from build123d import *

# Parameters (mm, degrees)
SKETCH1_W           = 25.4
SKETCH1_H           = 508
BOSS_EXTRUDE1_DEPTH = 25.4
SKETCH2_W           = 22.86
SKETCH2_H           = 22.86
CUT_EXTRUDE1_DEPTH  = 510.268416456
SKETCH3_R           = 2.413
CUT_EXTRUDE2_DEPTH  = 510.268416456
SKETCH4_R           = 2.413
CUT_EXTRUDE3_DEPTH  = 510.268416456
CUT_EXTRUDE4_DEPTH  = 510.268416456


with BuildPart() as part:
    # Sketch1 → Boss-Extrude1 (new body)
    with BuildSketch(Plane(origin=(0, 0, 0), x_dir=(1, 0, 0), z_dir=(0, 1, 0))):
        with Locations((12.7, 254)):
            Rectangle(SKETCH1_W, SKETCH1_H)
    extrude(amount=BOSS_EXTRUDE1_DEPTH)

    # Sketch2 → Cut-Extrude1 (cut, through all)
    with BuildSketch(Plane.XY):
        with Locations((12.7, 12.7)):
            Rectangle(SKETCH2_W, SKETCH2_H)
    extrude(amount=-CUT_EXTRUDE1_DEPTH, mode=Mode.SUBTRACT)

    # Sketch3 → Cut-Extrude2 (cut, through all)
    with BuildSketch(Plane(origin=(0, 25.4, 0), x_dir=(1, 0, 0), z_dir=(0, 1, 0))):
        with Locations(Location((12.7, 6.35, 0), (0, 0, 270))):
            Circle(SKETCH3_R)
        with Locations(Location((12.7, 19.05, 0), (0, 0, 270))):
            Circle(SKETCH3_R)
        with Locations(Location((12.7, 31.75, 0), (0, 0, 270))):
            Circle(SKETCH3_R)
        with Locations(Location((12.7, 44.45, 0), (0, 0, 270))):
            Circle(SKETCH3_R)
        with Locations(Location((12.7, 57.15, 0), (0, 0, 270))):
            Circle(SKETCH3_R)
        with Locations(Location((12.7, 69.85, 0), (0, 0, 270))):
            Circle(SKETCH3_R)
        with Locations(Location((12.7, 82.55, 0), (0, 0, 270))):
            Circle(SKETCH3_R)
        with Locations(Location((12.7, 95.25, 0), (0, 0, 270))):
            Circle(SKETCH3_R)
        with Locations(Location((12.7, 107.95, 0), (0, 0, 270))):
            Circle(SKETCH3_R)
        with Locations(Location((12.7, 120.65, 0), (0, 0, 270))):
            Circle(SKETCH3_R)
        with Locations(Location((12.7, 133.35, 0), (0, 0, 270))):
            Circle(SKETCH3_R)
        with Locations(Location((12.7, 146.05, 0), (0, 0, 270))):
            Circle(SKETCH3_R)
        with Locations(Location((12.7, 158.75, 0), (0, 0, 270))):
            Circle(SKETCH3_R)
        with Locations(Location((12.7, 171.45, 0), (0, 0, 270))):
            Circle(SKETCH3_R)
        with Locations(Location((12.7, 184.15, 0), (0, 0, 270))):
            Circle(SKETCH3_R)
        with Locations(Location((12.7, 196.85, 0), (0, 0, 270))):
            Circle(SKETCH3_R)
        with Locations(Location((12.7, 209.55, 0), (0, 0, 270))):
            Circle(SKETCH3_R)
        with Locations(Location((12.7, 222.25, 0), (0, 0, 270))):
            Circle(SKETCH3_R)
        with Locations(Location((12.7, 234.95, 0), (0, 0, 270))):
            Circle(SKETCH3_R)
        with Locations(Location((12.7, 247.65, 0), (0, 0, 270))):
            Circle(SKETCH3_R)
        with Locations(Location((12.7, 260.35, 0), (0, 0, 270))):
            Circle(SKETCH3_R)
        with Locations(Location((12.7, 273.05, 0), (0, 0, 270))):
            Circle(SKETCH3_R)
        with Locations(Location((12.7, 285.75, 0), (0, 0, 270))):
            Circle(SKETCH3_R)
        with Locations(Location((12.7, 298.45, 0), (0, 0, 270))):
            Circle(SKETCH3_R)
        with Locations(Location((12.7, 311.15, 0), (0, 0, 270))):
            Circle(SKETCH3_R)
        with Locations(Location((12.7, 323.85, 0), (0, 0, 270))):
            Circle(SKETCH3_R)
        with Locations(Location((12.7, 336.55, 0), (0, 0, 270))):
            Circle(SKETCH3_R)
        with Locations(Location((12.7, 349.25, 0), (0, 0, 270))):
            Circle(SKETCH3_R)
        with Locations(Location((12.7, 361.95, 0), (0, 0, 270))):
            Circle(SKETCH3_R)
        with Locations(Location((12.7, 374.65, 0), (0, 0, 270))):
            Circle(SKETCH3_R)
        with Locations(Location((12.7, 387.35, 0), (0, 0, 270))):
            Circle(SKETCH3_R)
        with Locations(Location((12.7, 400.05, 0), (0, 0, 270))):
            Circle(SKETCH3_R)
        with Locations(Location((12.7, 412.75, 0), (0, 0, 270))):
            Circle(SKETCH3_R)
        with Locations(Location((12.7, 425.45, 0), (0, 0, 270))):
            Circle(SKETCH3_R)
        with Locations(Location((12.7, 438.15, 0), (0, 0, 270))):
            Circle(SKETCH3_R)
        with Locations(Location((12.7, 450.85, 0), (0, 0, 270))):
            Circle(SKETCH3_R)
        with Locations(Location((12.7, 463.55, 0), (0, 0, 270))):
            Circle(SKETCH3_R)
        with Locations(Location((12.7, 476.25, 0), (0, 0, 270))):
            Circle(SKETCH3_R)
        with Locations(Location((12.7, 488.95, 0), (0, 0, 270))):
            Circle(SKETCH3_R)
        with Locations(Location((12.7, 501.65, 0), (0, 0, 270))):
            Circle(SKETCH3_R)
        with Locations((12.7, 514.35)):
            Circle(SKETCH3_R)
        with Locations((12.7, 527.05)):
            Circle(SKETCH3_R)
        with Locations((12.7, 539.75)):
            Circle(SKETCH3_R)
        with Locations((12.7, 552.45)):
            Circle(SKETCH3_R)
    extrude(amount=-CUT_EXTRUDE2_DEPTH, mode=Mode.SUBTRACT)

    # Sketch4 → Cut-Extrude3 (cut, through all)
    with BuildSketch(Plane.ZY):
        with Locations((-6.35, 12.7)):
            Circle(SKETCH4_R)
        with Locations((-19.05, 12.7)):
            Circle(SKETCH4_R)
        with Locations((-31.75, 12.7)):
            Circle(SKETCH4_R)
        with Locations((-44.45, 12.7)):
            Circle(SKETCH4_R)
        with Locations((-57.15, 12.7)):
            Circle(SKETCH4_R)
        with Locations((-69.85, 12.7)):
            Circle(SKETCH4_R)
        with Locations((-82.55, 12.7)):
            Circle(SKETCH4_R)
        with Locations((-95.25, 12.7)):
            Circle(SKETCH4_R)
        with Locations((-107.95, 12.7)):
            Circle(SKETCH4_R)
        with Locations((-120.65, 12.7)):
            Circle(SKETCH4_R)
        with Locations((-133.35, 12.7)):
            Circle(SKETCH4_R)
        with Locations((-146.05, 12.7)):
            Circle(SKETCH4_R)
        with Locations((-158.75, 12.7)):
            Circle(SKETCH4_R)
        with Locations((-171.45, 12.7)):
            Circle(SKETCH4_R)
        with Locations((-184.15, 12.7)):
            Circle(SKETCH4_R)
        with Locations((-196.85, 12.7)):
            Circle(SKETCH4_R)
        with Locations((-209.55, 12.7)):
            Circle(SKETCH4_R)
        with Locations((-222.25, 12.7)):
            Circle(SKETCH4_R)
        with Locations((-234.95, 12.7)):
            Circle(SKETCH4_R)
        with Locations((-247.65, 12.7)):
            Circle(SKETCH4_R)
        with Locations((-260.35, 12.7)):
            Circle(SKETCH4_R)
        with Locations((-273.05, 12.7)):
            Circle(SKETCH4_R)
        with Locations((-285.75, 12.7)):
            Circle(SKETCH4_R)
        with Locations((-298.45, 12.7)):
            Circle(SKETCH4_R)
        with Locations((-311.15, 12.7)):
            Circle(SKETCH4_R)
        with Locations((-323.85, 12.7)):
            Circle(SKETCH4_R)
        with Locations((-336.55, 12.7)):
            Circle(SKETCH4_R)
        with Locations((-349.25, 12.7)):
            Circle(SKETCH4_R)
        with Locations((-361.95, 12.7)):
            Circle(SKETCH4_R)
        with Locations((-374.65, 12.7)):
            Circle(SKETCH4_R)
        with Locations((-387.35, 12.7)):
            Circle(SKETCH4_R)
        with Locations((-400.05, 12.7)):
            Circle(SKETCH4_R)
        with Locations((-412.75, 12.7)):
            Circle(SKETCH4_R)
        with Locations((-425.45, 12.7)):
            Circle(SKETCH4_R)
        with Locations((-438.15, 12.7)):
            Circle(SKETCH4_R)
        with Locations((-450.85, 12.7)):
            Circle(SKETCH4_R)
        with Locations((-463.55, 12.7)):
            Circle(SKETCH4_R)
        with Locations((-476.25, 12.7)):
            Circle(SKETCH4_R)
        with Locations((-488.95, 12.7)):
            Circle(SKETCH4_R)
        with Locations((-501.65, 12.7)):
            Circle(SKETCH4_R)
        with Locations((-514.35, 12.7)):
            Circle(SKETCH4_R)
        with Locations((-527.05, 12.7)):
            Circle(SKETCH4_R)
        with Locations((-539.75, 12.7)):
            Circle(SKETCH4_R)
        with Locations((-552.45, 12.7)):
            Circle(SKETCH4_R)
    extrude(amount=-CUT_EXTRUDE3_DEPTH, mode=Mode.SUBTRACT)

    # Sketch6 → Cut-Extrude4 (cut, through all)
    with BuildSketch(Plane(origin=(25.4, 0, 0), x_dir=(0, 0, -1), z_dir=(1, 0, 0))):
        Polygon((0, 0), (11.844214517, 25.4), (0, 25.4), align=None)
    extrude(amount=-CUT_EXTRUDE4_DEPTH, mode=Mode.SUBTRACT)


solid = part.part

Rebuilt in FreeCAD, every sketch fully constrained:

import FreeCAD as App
import Part
import Sketcher
Q = App.Units.Quantity


def add_polygon(sketch, points):
    """Adds a closed chain of lines whose ends are joined by coincident constraints."""
    first, n = sketch.GeometryCount, len(points)
    for a, b in zip(points, points[1:] + points[:1]):
        sketch.addGeometry(Part.LineSegment(App.Vector(*a, 0), App.Vector(*b, 0)), False)
    for i in range(n):
        sketch.addConstraint(Sketcher.Constraint("Coincident", first + i, 2, first + (i + 1) % n, 1))

doc = App.newDocument("Part")
body = doc.addObject("PartDesign::Body", "Body")

# Sketch on XZ plane
sketch1 = doc.addObject("Sketcher::SketchObject", "Sketch")
body.addObject(sketch1)
sketch1.AttachmentSupport = (doc.XZ_Plane, [""])
sketch1.MapMode = "FlatFace"
add_polygon(sketch1, [(0, -508), (0, 0), (25, 0), (25, -508)])  # lines 0-3
sketch1.addConstraint([
    Sketcher.Constraint("Vertical", 0),
    Sketcher.Constraint("Horizontal", 1),
    Sketcher.Constraint("Vertical", 2),
    Sketcher.Constraint("Horizontal", 3),
    Sketcher.Constraint("Coincident", 0, 2, -1, 1),
    Sketcher.Constraint("DistanceX", 1, 1, 1, 2, Q("1 in")),
    Sketcher.Constraint("DistanceY", 0, 1, 0, 2, Q("20 in")),
])
pad1 = doc.addObject("PartDesign::Pad", "Pad")
body.addObject(pad1)
pad1.Profile = sketch1
pad1.Length = Q("1 in")
pad1.Reversed = True

# Sketch on XY plane
sketch2 = doc.addObject("Sketcher::SketchObject", "Sketch001")
body.addObject(sketch2)
sketch2.AttachmentSupport = (doc.XY_Plane, [""])
sketch2.MapMode = "FlatFace"
add_polygon(sketch2, [(1, 24), (1, 1), (24, 1), (24, 24)])  # lines 0-3
sketch2.addConstraint([
    Sketcher.Constraint("Vertical", 0),
    Sketcher.Constraint("Horizontal", 1),
    Sketcher.Constraint("Vertical", 2),
    Sketcher.Constraint("Horizontal", 3),
    Sketcher.Constraint("Equal", 3, 0),
    Sketcher.Constraint("DistanceX", 1, 1, 1, 2, Q("0.9 in")),
    Sketcher.Constraint("DistanceX", -1, 1, 0, 2, Q("0.05 in")),
    Sketcher.Constraint("DistanceY", -1, 1, 0, 2, Q("0.05 in")),
])
pocket1 = doc.addObject("PartDesign::Pocket", "Pocket")
body.addObject(pocket1)
pocket1.Profile = sketch2
pocket1.Type = "ThroughAll"

# Sketch on XZ plane
sketch3 = doc.addObject("Sketcher::SketchObject", "Sketch002")
body.addObject(sketch3)
sketch3.AttachmentSupport = (doc.XZ_Plane, [""])
sketch3.MapMode = "FlatFace"
sketch3.AttachmentOffset = App.Placement(App.Vector(0, 0, -1 * 25.4), App.Rotation())
sketch3.addGeometry([
    Part.Circle(App.Vector(12.7, -6.3, 0), App.Vector(0, 0, 1), 2.4),  # 0
    Part.Circle(App.Vector(12.7, -19.1, 0), App.Vector(0, 0, 1), 2.4),  # 1
    Part.Circle(App.Vector(12.7, -31.8, 0), App.Vector(0, 0, 1), 2.4),  # 2
    Part.Circle(App.Vector(12.7, -44.5, 0), App.Vector(0, 0, 1), 2.4),  # 3
    Part.Circle(App.Vector(12.7, -57.1, 0), App.Vector(0, 0, 1), 2.4),  # 4
    Part.Circle(App.Vector(12.7, -69.8, 0), App.Vector(0, 0, 1), 2.4),  # 5
    Part.Circle(App.Vector(12.7, -82.5, 0), App.Vector(0, 0, 1), 2.4),  # 6
    Part.Circle(App.Vector(12.7, -95.2, 0), App.Vector(0, 0, 1), 2.4),  # 7
    Part.Circle(App.Vector(12.7, -108, 0), App.Vector(0, 0, 1), 2.4),  # 8
    Part.Circle(App.Vector(12.7, -120.7, 0), App.Vector(0, 0, 1), 2.4),  # 9
    Part.Circle(App.Vector(12.7, -133.3, 0), App.Vector(0, 0, 1), 2.4),  # 10
    Part.Circle(App.Vector(12.7, -146.1, 0), App.Vector(0, 0, 1), 2.4),  # 11
    Part.Circle(App.Vector(12.7, -158.8, 0), App.Vector(0, 0, 1), 2.4),  # 12
    Part.Circle(App.Vector(12.7, -171.4, 0), App.Vector(0, 0, 1), 2.4),  # 13
    Part.Circle(App.Vector(12.7, -184.2, 0), App.Vector(0, 0, 1), 2.4),  # 14
    Part.Circle(App.Vector(12.7, -196.8, 0), App.Vector(0, 0, 1), 2.4),  # 15
    Part.Circle(App.Vector(12.7, -209.6, 0), App.Vector(0, 0, 1), 2.4),  # 16
    Part.Circle(App.Vector(12.7, -222.2, 0), App.Vector(0, 0, 1), 2.4),  # 17
    Part.Circle(App.Vector(12.7, -234.9, 0), App.Vector(0, 0, 1), 2.4),  # 18
    Part.Circle(App.Vector(12.7, -247.7, 0), App.Vector(0, 0, 1), 2.4),  # 19
    Part.Circle(App.Vector(12.7, -260.4, 0), App.Vector(0, 0, 1), 2.4),  # 20
    Part.Circle(App.Vector(12.7, -273.1, 0), App.Vector(0, 0, 1), 2.4),  # 21
    Part.Circle(App.Vector(12.7, -285.8, 0), App.Vector(0, 0, 1), 2.4),  # 22
    Part.Circle(App.Vector(12.7, -298.4, 0), App.Vector(0, 0, 1), 2.4),  # 23
    Part.Circle(App.Vector(12.7, -311.1, 0), App.Vector(0, 0, 1), 2.4),  # 24
    Part.Circle(App.Vector(12.7, -323.9, 0), App.Vector(0, 0, 1), 2.4),  # 25
    Part.Circle(App.Vector(12.7, -336.6, 0), App.Vector(0, 0, 1), 2.4),  # 26
    Part.Circle(App.Vector(12.7, -349.2, 0), App.Vector(0, 0, 1), 2.4),  # 27
    Part.Circle(App.Vector(12.7, -361.9, 0), App.Vector(0, 0, 1), 2.4),  # 28
    Part.Circle(App.Vector(12.7, -374.6, 0), App.Vector(0, 0, 1), 2.4),  # 29
    Part.Circle(App.Vector(12.7, -387.4, 0), App.Vector(0, 0, 1), 2.4),  # 30
    Part.Circle(App.Vector(12.7, -400.1, 0), App.Vector(0, 0, 1), 2.4),  # 31
    Part.Circle(App.Vector(12.7, -412.8, 0), App.Vector(0, 0, 1), 2.4),  # 32
    Part.Circle(App.Vector(12.7, -425.4, 0), App.Vector(0, 0, 1), 2.4),  # 33
    Part.Circle(App.Vector(12.7, -438.1, 0), App.Vector(0, 0, 1), 2.4),  # 34
    Part.Circle(App.Vector(12.7, -450.9, 0), App.Vector(0, 0, 1), 2.4),  # 35
    Part.Circle(App.Vector(12.7, -463.6, 0), App.Vector(0, 0, 1), 2.4),  # 36
    Part.Circle(App.Vector(12.7, -476.2, 0), App.Vector(0, 0, 1), 2.4),  # 37
    Part.Circle(App.Vector(12.7, -488.9, 0), App.Vector(0, 0, 1), 2.4),  # 38
    Part.Circle(App.Vector(12.7, -501.6, 0), App.Vector(0, 0, 1), 2.4),  # 39
    Part.Circle(App.Vector(12.7, -514.4, 0), App.Vector(0, 0, 1), 2.4),  # 40
    Part.Circle(App.Vector(12.7, -527, 0), App.Vector(0, 0, 1), 2.4),  # 41
    Part.Circle(App.Vector(12.7, -539.8, 0), App.Vector(0, 0, 1), 2.4),  # 42
    Part.Circle(App.Vector(12.7, -552.5, 0), App.Vector(0, 0, 1), 2.4),  # 43
], False)
sketch3.addConstraint([
    Sketcher.Constraint("Equal", 0, 1),
    Sketcher.Constraint("Equal", 1, 2),
    Sketcher.Constraint("Equal", 2, 3),
    Sketcher.Constraint("Equal", 3, 4),
    Sketcher.Constraint("Equal", 4, 5),
    Sketcher.Constraint("Equal", 5, 6),
    Sketcher.Constraint("Equal", 6, 7),
    Sketcher.Constraint("Equal", 7, 8),
    Sketcher.Constraint("Equal", 8, 9),
    Sketcher.Constraint("Equal", 9, 10),
    Sketcher.Constraint("Equal", 10, 11),
    Sketcher.Constraint("Equal", 11, 12),
    Sketcher.Constraint("Equal", 12, 13),
    Sketcher.Constraint("Equal", 13, 14),
    Sketcher.Constraint("Equal", 14, 15),
    Sketcher.Constraint("Equal", 15, 16),
    Sketcher.Constraint("Equal", 16, 17),
    Sketcher.Constraint("Equal", 17, 18),
    Sketcher.Constraint("Equal", 18, 19),
    Sketcher.Constraint("Equal", 19, 20),
    Sketcher.Constraint("Equal", 20, 21),
    Sketcher.Constraint("Equal", 21, 22),
    Sketcher.Constraint("Equal", 22, 23),
    Sketcher.Constraint("Equal", 23, 24),
    Sketcher.Constraint("Equal", 24, 25),
    Sketcher.Constraint("Equal", 25, 26),
    Sketcher.Constraint("Equal", 26, 27),
    Sketcher.Constraint("Equal", 27, 28),
    Sketcher.Constraint("Equal", 28, 29),
    Sketcher.Constraint("Equal", 29, 30),
    Sketcher.Constraint("Equal", 30, 31),
    Sketcher.Constraint("Equal", 31, 32),
    Sketcher.Constraint("Equal", 32, 33),
    Sketcher.Constraint("Equal", 33, 34),
    Sketcher.Constraint("Equal", 34, 35),
    Sketcher.Constraint("Equal", 35, 36),
    Sketcher.Constraint("Equal", 36, 37),
    Sketcher.Constraint("Equal", 37, 38),
    Sketcher.Constraint("Equal", 38, 39),
    Sketcher.Constraint("Equal", 39, 40),
    Sketcher.Constraint("Equal", 40, 41),
    Sketcher.Constraint("Equal", 41, 42),
    Sketcher.Constraint("Equal", 42, 43),
    Sketcher.Constraint("Vertical", 0, 3, 1, 3),
    Sketcher.Constraint("Vertical", 1, 3, 2, 3),
    Sketcher.Constraint("Vertical", 2, 3, 3, 3),
    Sketcher.Constraint("Vertical", 3, 3, 4, 3),
    Sketcher.Constraint("Vertical", 4, 3, 5, 3),
    Sketcher.Constraint("Vertical", 5, 3, 6, 3),
    Sketcher.Constraint("Vertical", 6, 3, 7, 3),
    Sketcher.Constraint("Vertical", 7, 3, 8, 3),
    Sketcher.Constraint("Vertical", 8, 3, 9, 3),
    Sketcher.Constraint("Vertical", 9, 3, 10, 3),
    Sketcher.Constraint("Vertical", 10, 3, 11, 3),
    Sketcher.Constraint("Vertical", 11, 3, 12, 3),
    Sketcher.Constraint("Vertical", 12, 3, 13, 3),
    Sketcher.Constraint("Vertical", 13, 3, 14, 3),
    Sketcher.Constraint("Vertical", 14, 3, 15, 3),
    Sketcher.Constraint("Vertical", 15, 3, 16, 3),
    Sketcher.Constraint("Vertical", 16, 3, 17, 3),
    Sketcher.Constraint("Vertical", 17, 3, 18, 3),
    Sketcher.Constraint("Vertical", 18, 3, 19, 3),
    Sketcher.Constraint("Vertical", 19, 3, 20, 3),
    Sketcher.Constraint("Vertical", 20, 3, 21, 3),
    Sketcher.Constraint("Vertical", 21, 3, 22, 3),
    Sketcher.Constraint("Vertical", 22, 3, 23, 3),
    Sketcher.Constraint("Vertical", 23, 3, 24, 3),
    Sketcher.Constraint("Vertical", 24, 3, 25, 3),
    Sketcher.Constraint("Vertical", 25, 3, 26, 3),
    Sketcher.Constraint("Vertical", 26, 3, 27, 3),
    Sketcher.Constraint("Vertical", 27, 3, 28, 3),
    Sketcher.Constraint("Vertical", 28, 3, 29, 3),
    Sketcher.Constraint("Vertical", 29, 3, 30, 3),
    Sketcher.Constraint("Vertical", 30, 3, 31, 3),
    Sketcher.Constraint("Vertical", 31, 3, 32, 3),
    Sketcher.Constraint("Vertical", 32, 3, 33, 3),
    Sketcher.Constraint("Vertical", 33, 3, 34, 3),
    Sketcher.Constraint("Vertical", 34, 3, 35, 3),
    Sketcher.Constraint("Vertical", 35, 3, 36, 3),
    Sketcher.Constraint("Vertical", 36, 3, 37, 3),
    Sketcher.Constraint("Vertical", 37, 3, 38, 3),
    Sketcher.Constraint("Vertical", 38, 3, 39, 3),
    Sketcher.Constraint("Vertical", 39, 3, 40, 3),
    Sketcher.Constraint("Vertical", 40, 3, 41, 3),
    Sketcher.Constraint("Vertical", 41, 3, 42, 3),
    Sketcher.Constraint("Vertical", 42, 3, 43, 3),
    Sketcher.Constraint("Diameter", 0, Q("0.19 in")),
    Sketcher.Constraint("DistanceY", 2, 3, 0, 3, Q("1 in")),
    Sketcher.Constraint("DistanceY", 3, 3, 1, 3, Q("1 in")),
    Sketcher.Constraint("DistanceY", 4, 3, 2, 3, Q("1 in")),
    Sketcher.Constraint("DistanceY", 5, 3, 3, 3, Q("1 in")),
    Sketcher.Constraint("DistanceY", 6, 3, 4, 3, Q("1 in")),
    Sketcher.Constraint("DistanceY", 7, 3, 5, 3, Q("1 in")),
    Sketcher.Constraint("DistanceY", 8, 3, 6, 3, Q("1 in")),
    Sketcher.Constraint("DistanceY", 9, 3, 7, 3, Q("1 in")),
    Sketcher.Constraint("DistanceY", 10, 3, 8, 3, Q("1 in")),
    Sketcher.Constraint("DistanceY", 11, 3, 9, 3, Q("1 in")),
    Sketcher.Constraint("DistanceY", 12, 3, 10, 3, Q("1 in")),
    Sketcher.Constraint("DistanceY", 13, 3, 11, 3, Q("1 in")),
    Sketcher.Constraint("DistanceY", 14, 3, 12, 3, Q("1 in")),
    Sketcher.Constraint("DistanceY", 15, 3, 13, 3, Q("1 in")),
    Sketcher.Constraint("DistanceY", 16, 3, 14, 3, Q("1 in")),
    Sketcher.Constraint("DistanceY", 17, 3, 15, 3, Q("1 in")),
    Sketcher.Constraint("DistanceY", 18, 3, 16, 3, Q("1 in")),
    Sketcher.Constraint("DistanceY", 19, 3, 17, 3, Q("1 in")),
    Sketcher.Constraint("DistanceY", 20, 3, 18, 3, Q("1 in")),
    Sketcher.Constraint("DistanceY", 21, 3, 19, 3, Q("1 in")),
    Sketcher.Constraint("DistanceY", 22, 3, 20, 3, Q("1 in")),
    Sketcher.Constraint("DistanceY", 23, 3, 21, 3, Q("1 in")),
    Sketcher.Constraint("DistanceY", 24, 3, 22, 3, Q("1 in")),
    Sketcher.Constraint("DistanceY", 25, 3, 23, 3, Q("1 in")),
    Sketcher.Constraint("DistanceY", 26, 3, 24, 3, Q("1 in")),
    Sketcher.Constraint("DistanceY", 27, 3, 25, 3, Q("1 in")),
    Sketcher.Constraint("DistanceY", 28, 3, 26, 3, Q("1 in")),
    Sketcher.Constraint("DistanceY", 29, 3, 27, 3, Q("1 in")),
    Sketcher.Constraint("DistanceY", 30, 3, 28, 3, Q("1 in")),
    Sketcher.Constraint("DistanceY", 31, 3, 29, 3, Q("1 in")),
    Sketcher.Constraint("DistanceY", 32, 3, 30, 3, Q("1 in")),
    Sketcher.Constraint("DistanceY", 33, 3, 31, 3, Q("1 in")),
    Sketcher.Constraint("DistanceY", 34, 3, 32, 3, Q("1 in")),
    Sketcher.Constraint("DistanceY", 35, 3, 33, 3, Q("1 in")),
    Sketcher.Constraint("DistanceY", 36, 3, 34, 3, Q("1 in")),
    Sketcher.Constraint("DistanceY", 37, 3, 35, 3, Q("1 in")),
    Sketcher.Constraint("DistanceY", 38, 3, 36, 3, Q("1 in")),
    Sketcher.Constraint("DistanceY", 39, 3, 37, 3, Q("1 in")),
    Sketcher.Constraint("DistanceY", 40, 3, 38, 3, Q("1 in")),
    Sketcher.Constraint("DistanceY", 41, 3, 39, 3, Q("1 in")),
    Sketcher.Constraint("DistanceY", 42, 3, 40, 3, Q("1 in")),
    Sketcher.Constraint("DistanceY", 43, 3, 41, 3, Q("1 in")),
    Sketcher.Constraint("DistanceX", -1, 1, 0, 3, Q("0.5 in")),
    Sketcher.Constraint("DistanceY", 1, 3, 0, 3, Q("0.5 in")),
    Sketcher.Constraint("DistanceY", 0, 3, -1, 1, Q("0.25 in")),
])
pocket2 = doc.addObject("PartDesign::Pocket", "Pocket001")
body.addObject(pocket2)
pocket2.Profile = sketch3
pocket2.Type = "ThroughAll"
pocket2.Reversed = True

# Sketch on YZ plane
sketch4 = doc.addObject("Sketcher::SketchObject", "Sketch003")
body.addObject(sketch4)
sketch4.AttachmentSupport = (doc.YZ_Plane, [""])
sketch4.MapMode = "FlatFace"
sketch4.addGeometry([
    Part.Circle(App.Vector(12.7, -6.3, 0), App.Vector(0, 0, 1), 2.4),  # 0
    Part.Circle(App.Vector(12.7, -19.1, 0), App.Vector(0, 0, 1), 2.4),  # 1
    Part.Circle(App.Vector(12.7, -31.8, 0), App.Vector(0, 0, 1), 2.4),  # 2
    Part.Circle(App.Vector(12.7, -44.5, 0), App.Vector(0, 0, 1), 2.4),  # 3
    Part.Circle(App.Vector(12.7, -57.1, 0), App.Vector(0, 0, 1), 2.4),  # 4
    Part.Circle(App.Vector(12.7, -69.8, 0), App.Vector(0, 0, 1), 2.4),  # 5
    Part.Circle(App.Vector(12.7, -82.5, 0), App.Vector(0, 0, 1), 2.4),  # 6
    Part.Circle(App.Vector(12.7, -95.2, 0), App.Vector(0, 0, 1), 2.4),  # 7
    Part.Circle(App.Vector(12.7, -108, 0), App.Vector(0, 0, 1), 2.4),  # 8
    Part.Circle(App.Vector(12.7, -120.7, 0), App.Vector(0, 0, 1), 2.4),  # 9
    Part.Circle(App.Vector(12.7, -133.3, 0), App.Vector(0, 0, 1), 2.4),  # 10
    Part.Circle(App.Vector(12.7, -146.1, 0), App.Vector(0, 0, 1), 2.4),  # 11
    Part.Circle(App.Vector(12.7, -158.8, 0), App.Vector(0, 0, 1), 2.4),  # 12
    Part.Circle(App.Vector(12.7, -171.4, 0), App.Vector(0, 0, 1), 2.4),  # 13
    Part.Circle(App.Vector(12.7, -184.2, 0), App.Vector(0, 0, 1), 2.4),  # 14
    Part.Circle(App.Vector(12.7, -196.8, 0), App.Vector(0, 0, 1), 2.4),  # 15
    Part.Circle(App.Vector(12.7, -209.6, 0), App.Vector(0, 0, 1), 2.4),  # 16
    Part.Circle(App.Vector(12.7, -222.2, 0), App.Vector(0, 0, 1), 2.4),  # 17
    Part.Circle(App.Vector(12.7, -234.9, 0), App.Vector(0, 0, 1), 2.4),  # 18
    Part.Circle(App.Vector(12.7, -247.7, 0), App.Vector(0, 0, 1), 2.4),  # 19
    Part.Circle(App.Vector(12.7, -260.4, 0), App.Vector(0, 0, 1), 2.4),  # 20
    Part.Circle(App.Vector(12.7, -273.1, 0), App.Vector(0, 0, 1), 2.4),  # 21
    Part.Circle(App.Vector(12.7, -285.8, 0), App.Vector(0, 0, 1), 2.4),  # 22
    Part.Circle(App.Vector(12.7, -298.4, 0), App.Vector(0, 0, 1), 2.4),  # 23
    Part.Circle(App.Vector(12.7, -311.1, 0), App.Vector(0, 0, 1), 2.4),  # 24
    Part.Circle(App.Vector(12.7, -323.9, 0), App.Vector(0, 0, 1), 2.4),  # 25
    Part.Circle(App.Vector(12.7, -336.6, 0), App.Vector(0, 0, 1), 2.4),  # 26
    Part.Circle(App.Vector(12.7, -349.2, 0), App.Vector(0, 0, 1), 2.4),  # 27
    Part.Circle(App.Vector(12.7, -361.9, 0), App.Vector(0, 0, 1), 2.4),  # 28
    Part.Circle(App.Vector(12.7, -374.6, 0), App.Vector(0, 0, 1), 2.4),  # 29
    Part.Circle(App.Vector(12.7, -387.4, 0), App.Vector(0, 0, 1), 2.4),  # 30
    Part.Circle(App.Vector(12.7, -400.1, 0), App.Vector(0, 0, 1), 2.4),  # 31
    Part.Circle(App.Vector(12.7, -412.8, 0), App.Vector(0, 0, 1), 2.4),  # 32
    Part.Circle(App.Vector(12.7, -425.4, 0), App.Vector(0, 0, 1), 2.4),  # 33
    Part.Circle(App.Vector(12.7, -438.1, 0), App.Vector(0, 0, 1), 2.4),  # 34
    Part.Circle(App.Vector(12.7, -450.9, 0), App.Vector(0, 0, 1), 2.4),  # 35
    Part.Circle(App.Vector(12.7, -463.6, 0), App.Vector(0, 0, 1), 2.4),  # 36
    Part.Circle(App.Vector(12.7, -476.2, 0), App.Vector(0, 0, 1), 2.4),  # 37
    Part.Circle(App.Vector(12.7, -488.9, 0), App.Vector(0, 0, 1), 2.4),  # 38
    Part.Circle(App.Vector(12.7, -501.6, 0), App.Vector(0, 0, 1), 2.4),  # 39
    Part.Circle(App.Vector(12.7, -514.4, 0), App.Vector(0, 0, 1), 2.4),  # 40
    Part.Circle(App.Vector(12.7, -527, 0), App.Vector(0, 0, 1), 2.4),  # 41
    Part.Circle(App.Vector(12.7, -539.8, 0), App.Vector(0, 0, 1), 2.4),  # 42
    Part.Circle(App.Vector(12.7, -552.5, 0), App.Vector(0, 0, 1), 2.4),  # 43
], False)
sketch4.addConstraint([
    Sketcher.Constraint("Equal", 0, 1),
    Sketcher.Constraint("Equal", 1, 2),
    Sketcher.Constraint("Equal", 2, 3),
    Sketcher.Constraint("Equal", 3, 4),
    Sketcher.Constraint("Equal", 4, 5),
    Sketcher.Constraint("Equal", 5, 6),
    Sketcher.Constraint("Equal", 6, 7),
    Sketcher.Constraint("Equal", 7, 8),
    Sketcher.Constraint("Equal", 8, 9),
    Sketcher.Constraint("Equal", 9, 10),
    Sketcher.Constraint("Equal", 10, 11),
    Sketcher.Constraint("Equal", 11, 12),
    Sketcher.Constraint("Equal", 12, 13),
    Sketcher.Constraint("Equal", 13, 14),
    Sketcher.Constraint("Equal", 14, 15),
    Sketcher.Constraint("Equal", 15, 16),
    Sketcher.Constraint("Equal", 16, 17),
    Sketcher.Constraint("Equal", 17, 18),
    Sketcher.Constraint("Equal", 18, 19),
    Sketcher.Constraint("Equal", 19, 20),
    Sketcher.Constraint("Equal", 20, 21),
    Sketcher.Constraint("Equal", 21, 22),
    Sketcher.Constraint("Equal", 22, 23),
    Sketcher.Constraint("Equal", 23, 24),
    Sketcher.Constraint("Equal", 24, 25),
    Sketcher.Constraint("Equal", 25, 26),
    Sketcher.Constraint("Equal", 26, 27),
    Sketcher.Constraint("Equal", 27, 28),
    Sketcher.Constraint("Equal", 28, 29),
    Sketcher.Constraint("Equal", 29, 30),
    Sketcher.Constraint("Equal", 30, 31),
    Sketcher.Constraint("Equal", 31, 32),
    Sketcher.Constraint("Equal", 32, 33),
    Sketcher.Constraint("Equal", 33, 34),
    Sketcher.Constraint("Equal", 34, 35),
    Sketcher.Constraint("Equal", 35, 36),
    Sketcher.Constraint("Equal", 36, 37),
    Sketcher.Constraint("Equal", 37, 38),
    Sketcher.Constraint("Equal", 38, 39),
    Sketcher.Constraint("Equal", 39, 40),
    Sketcher.Constraint("Equal", 40, 41),
    Sketcher.Constraint("Equal", 41, 42),
    Sketcher.Constraint("Equal", 42, 43),
    Sketcher.Constraint("Vertical", 0, 3, 1, 3),
    Sketcher.Constraint("Vertical", 1, 3, 2, 3),
    Sketcher.Constraint("Vertical", 2, 3, 3, 3),
    Sketcher.Constraint("Vertical", 3, 3, 4, 3),
    Sketcher.Constraint("Vertical", 4, 3, 5, 3),
    Sketcher.Constraint("Vertical", 5, 3, 6, 3),
    Sketcher.Constraint("Vertical", 6, 3, 7, 3),
    Sketcher.Constraint("Vertical", 7, 3, 8, 3),
    Sketcher.Constraint("Vertical", 8, 3, 9, 3),
    Sketcher.Constraint("Vertical", 9, 3, 10, 3),
    Sketcher.Constraint("Vertical", 10, 3, 11, 3),
    Sketcher.Constraint("Vertical", 11, 3, 12, 3),
    Sketcher.Constraint("Vertical", 12, 3, 13, 3),
    Sketcher.Constraint("Vertical", 13, 3, 14, 3),
    Sketcher.Constraint("Vertical", 14, 3, 15, 3),
    Sketcher.Constraint("Vertical", 15, 3, 16, 3),
    Sketcher.Constraint("Vertical", 16, 3, 17, 3),
    Sketcher.Constraint("Vertical", 17, 3, 18, 3),
    Sketcher.Constraint("Vertical", 18, 3, 19, 3),
    Sketcher.Constraint("Vertical", 19, 3, 20, 3),
    Sketcher.Constraint("Vertical", 20, 3, 21, 3),
    Sketcher.Constraint("Vertical", 21, 3, 22, 3),
    Sketcher.Constraint("Vertical", 22, 3, 23, 3),
    Sketcher.Constraint("Vertical", 23, 3, 24, 3),
    Sketcher.Constraint("Vertical", 24, 3, 25, 3),
    Sketcher.Constraint("Vertical", 25, 3, 26, 3),
    Sketcher.Constraint("Vertical", 26, 3, 27, 3),
    Sketcher.Constraint("Vertical", 27, 3, 28, 3),
    Sketcher.Constraint("Vertical", 28, 3, 29, 3),
    Sketcher.Constraint("Vertical", 29, 3, 30, 3),
    Sketcher.Constraint("Vertical", 30, 3, 31, 3),
    Sketcher.Constraint("Vertical", 31, 3, 32, 3),
    Sketcher.Constraint("Vertical", 32, 3, 33, 3),
    Sketcher.Constraint("Vertical", 33, 3, 34, 3),
    Sketcher.Constraint("Vertical", 34, 3, 35, 3),
    Sketcher.Constraint("Vertical", 35, 3, 36, 3),
    Sketcher.Constraint("Vertical", 36, 3, 37, 3),
    Sketcher.Constraint("Vertical", 37, 3, 38, 3),
    Sketcher.Constraint("Vertical", 38, 3, 39, 3),
    Sketcher.Constraint("Vertical", 39, 3, 40, 3),
    Sketcher.Constraint("Vertical", 40, 3, 41, 3),
    Sketcher.Constraint("Vertical", 41, 3, 42, 3),
    Sketcher.Constraint("Vertical", 42, 3, 43, 3),
    Sketcher.Constraint("Diameter", 0, Q("0.19 in")),
    Sketcher.Constraint("DistanceY", 2, 3, 0, 3, Q("1 in")),
    Sketcher.Constraint("DistanceY", 3, 3, 1, 3, Q("1 in")),
    Sketcher.Constraint("DistanceY", 4, 3, 2, 3, Q("1 in")),
    Sketcher.Constraint("DistanceY", 5, 3, 3, 3, Q("1 in")),
    Sketcher.Constraint("DistanceY", 6, 3, 4, 3, Q("1 in")),
    Sketcher.Constraint("DistanceY", 7, 3, 5, 3, Q("1 in")),
    Sketcher.Constraint("DistanceY", 8, 3, 6, 3, Q("1 in")),
    Sketcher.Constraint("DistanceY", 9, 3, 7, 3, Q("1 in")),
    Sketcher.Constraint("DistanceY", 10, 3, 8, 3, Q("1 in")),
    Sketcher.Constraint("DistanceY", 11, 3, 9, 3, Q("1 in")),
    Sketcher.Constraint("DistanceY", 12, 3, 10, 3, Q("1 in")),
    Sketcher.Constraint("DistanceY", 13, 3, 11, 3, Q("1 in")),
    Sketcher.Constraint("DistanceY", 14, 3, 12, 3, Q("1 in")),
    Sketcher.Constraint("DistanceY", 15, 3, 13, 3, Q("1 in")),
    Sketcher.Constraint("DistanceY", 16, 3, 14, 3, Q("1 in")),
    Sketcher.Constraint("DistanceY", 17, 3, 15, 3, Q("1 in")),
    Sketcher.Constraint("DistanceY", 18, 3, 16, 3, Q("1 in")),
    Sketcher.Constraint("DistanceY", 19, 3, 17, 3, Q("1 in")),
    Sketcher.Constraint("DistanceY", 20, 3, 18, 3, Q("1 in")),
    Sketcher.Constraint("DistanceY", 21, 3, 19, 3, Q("1 in")),
    Sketcher.Constraint("DistanceY", 22, 3, 20, 3, Q("1 in")),
    Sketcher.Constraint("DistanceY", 23, 3, 21, 3, Q("1 in")),
    Sketcher.Constraint("DistanceY", 24, 3, 22, 3, Q("1 in")),
    Sketcher.Constraint("DistanceY", 25, 3, 23, 3, Q("1 in")),
    Sketcher.Constraint("DistanceY", 26, 3, 24, 3, Q("1 in")),
    Sketcher.Constraint("DistanceY", 27, 3, 25, 3, Q("1 in")),
    Sketcher.Constraint("DistanceY", 28, 3, 26, 3, Q("1 in")),
    Sketcher.Constraint("DistanceY", 29, 3, 27, 3, Q("1 in")),
    Sketcher.Constraint("DistanceY", 30, 3, 28, 3, Q("1 in")),
    Sketcher.Constraint("DistanceY", 31, 3, 29, 3, Q("1 in")),
    Sketcher.Constraint("DistanceY", 32, 3, 30, 3, Q("1 in")),
    Sketcher.Constraint("DistanceY", 33, 3, 31, 3, Q("1 in")),
    Sketcher.Constraint("DistanceY", 34, 3, 32, 3, Q("1 in")),
    Sketcher.Constraint("DistanceY", 35, 3, 33, 3, Q("1 in")),
    Sketcher.Constraint("DistanceY", 36, 3, 34, 3, Q("1 in")),
    Sketcher.Constraint("DistanceY", 37, 3, 35, 3, Q("1 in")),
    Sketcher.Constraint("DistanceY", 38, 3, 36, 3, Q("1 in")),
    Sketcher.Constraint("DistanceY", 39, 3, 37, 3, Q("1 in")),
    Sketcher.Constraint("DistanceY", 40, 3, 38, 3, Q("1 in")),
    Sketcher.Constraint("DistanceY", 41, 3, 39, 3, Q("1 in")),
    Sketcher.Constraint("DistanceY", 42, 3, 40, 3, Q("1 in")),
    Sketcher.Constraint("DistanceY", 43, 3, 41, 3, Q("1 in")),
    Sketcher.Constraint("DistanceX", -1, 1, 0, 3, Q("0.5 in")),
    Sketcher.Constraint("DistanceY", 1, 3, 0, 3, Q("0.5 in")),
    Sketcher.Constraint("DistanceY", 0, 3, -1, 1, Q("0.25 in")),
])
pocket3 = doc.addObject("PartDesign::Pocket", "Pocket002")
body.addObject(pocket3)
pocket3.Profile = sketch4
pocket3.Type = "ThroughAll"
pocket3.Reversed = True

# Sketch on YZ plane
sketch5 = doc.addObject("Sketcher::SketchObject", "Sketch004")
body.addObject(sketch5)
sketch5.AttachmentSupport = (doc.YZ_Plane, [""])
sketch5.MapMode = "FlatFace"
sketch5.AttachmentOffset = App.Placement(App.Vector(0, 0, 1 * 25.4), App.Rotation())
add_polygon(sketch5, [(0, 0), (25, -12), (25, 0)])  # lines 0-2
sketch5.addConstraint([
    Sketcher.Constraint("Vertical", 1),
    Sketcher.Constraint("Horizontal", 2),
    Sketcher.Constraint("Coincident", 2, 2, -1, 1),
    Sketcher.Constraint("DistanceX", 2, 2, 2, 1, Q("1 in")),
    Sketcher.Constraint("Angle", 0, Q("-25 deg")),
])
pocket4 = doc.addObject("PartDesign::Pocket", "Pocket003")
body.addObject(pocket4)
pocket4.Profile = sketch5
pocket4.Type = "ThroughAll"

doc.recompute()
